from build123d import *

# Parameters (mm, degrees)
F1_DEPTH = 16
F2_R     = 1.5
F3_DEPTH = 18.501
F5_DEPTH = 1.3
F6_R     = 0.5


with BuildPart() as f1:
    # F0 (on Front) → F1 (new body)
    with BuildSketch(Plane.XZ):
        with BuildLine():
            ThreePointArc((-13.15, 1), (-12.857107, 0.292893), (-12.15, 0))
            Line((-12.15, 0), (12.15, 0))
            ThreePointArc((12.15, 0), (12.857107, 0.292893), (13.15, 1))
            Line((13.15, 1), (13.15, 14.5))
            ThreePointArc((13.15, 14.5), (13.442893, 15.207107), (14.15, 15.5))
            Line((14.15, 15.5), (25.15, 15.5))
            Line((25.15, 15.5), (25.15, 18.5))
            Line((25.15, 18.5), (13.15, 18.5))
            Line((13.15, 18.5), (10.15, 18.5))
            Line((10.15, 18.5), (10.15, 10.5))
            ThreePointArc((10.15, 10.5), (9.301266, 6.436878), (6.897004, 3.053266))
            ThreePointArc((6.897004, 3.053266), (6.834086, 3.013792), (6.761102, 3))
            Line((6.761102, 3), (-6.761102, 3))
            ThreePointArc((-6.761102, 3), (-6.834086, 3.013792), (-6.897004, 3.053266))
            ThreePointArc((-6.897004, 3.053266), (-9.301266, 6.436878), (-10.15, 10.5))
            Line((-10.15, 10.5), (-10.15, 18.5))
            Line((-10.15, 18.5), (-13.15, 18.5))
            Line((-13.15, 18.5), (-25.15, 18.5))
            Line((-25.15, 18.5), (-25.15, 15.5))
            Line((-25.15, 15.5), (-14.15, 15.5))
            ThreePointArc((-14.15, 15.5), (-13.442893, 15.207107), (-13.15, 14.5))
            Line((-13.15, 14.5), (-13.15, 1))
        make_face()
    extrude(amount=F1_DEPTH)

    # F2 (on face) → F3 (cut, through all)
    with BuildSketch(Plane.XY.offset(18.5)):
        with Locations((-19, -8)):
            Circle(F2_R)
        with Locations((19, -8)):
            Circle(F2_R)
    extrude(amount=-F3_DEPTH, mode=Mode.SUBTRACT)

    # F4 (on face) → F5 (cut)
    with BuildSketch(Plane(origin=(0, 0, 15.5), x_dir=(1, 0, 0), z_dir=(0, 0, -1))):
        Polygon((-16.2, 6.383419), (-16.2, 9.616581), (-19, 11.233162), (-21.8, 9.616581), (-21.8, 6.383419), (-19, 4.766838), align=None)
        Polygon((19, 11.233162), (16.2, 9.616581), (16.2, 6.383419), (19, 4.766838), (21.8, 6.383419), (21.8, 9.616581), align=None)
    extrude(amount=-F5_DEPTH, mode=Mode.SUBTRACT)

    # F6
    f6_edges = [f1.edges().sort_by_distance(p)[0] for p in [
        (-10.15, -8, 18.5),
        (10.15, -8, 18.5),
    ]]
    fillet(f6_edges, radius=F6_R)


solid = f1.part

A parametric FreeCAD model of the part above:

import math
import FreeCAD as App
import Part
import Sketcher

V = App.Vector
Q = App.Units.Quantity


def edges_at(feature, points):
    """Names of the edges that pass closest to the given points."""
    edges = feature.Shape.Edges
    near = lambda p: min(range(len(edges)), key=lambda i: edges[i].distToShape(Part.Vertex(*p))[0])
    return sorted({f"Edge{near(p) + 1}" for p in points})

doc = App.newDocument("Part")
body = doc.addObject("PartDesign::Body", "Body")

# Sketch on XZ plane
sketch1 = body.newObject("Sketcher::SketchObject", "Sketch")
sketch1.AttachmentSupport = (doc.getObject("XZ_Plane"), [""])
sketch1.MapMode = "FlatFace"
sketch1.addGeometry(Part.ArcOfCircle(Part.Circle(V(-12.15, 1, 0), V(0, 0, 1), 1), math.radians(180), math.radians(270)), False)
sketch1.addGeometry(Part.LineSegment(V(-12.15, 0, 0), V(12.15, 0, 0)), False)
sketch1.addGeometry(Part.ArcOfCircle(Part.Circle(V(12.15, 1, 0), V(0, 0, 1), 1), math.radians(-90), math.radians(0)), False)
sketch1.addGeometry(Part.LineSegment(V(13.15, 1, 0), V(13.15, 14.5, 0)), False)
sketch1.addGeometry(Part.ArcOfCircle(Part.Circle(V(14.15, 14.5, 0), V(0, 0, 1), 1), math.radians(90), math.radians(180)), False)
sketch1.addGeometry(Part.LineSegment(V(14.15, 15.5, 0), V(25.15, 15.5, 0)), False)
sketch1.addGeometry(Part.LineSegment(V(25.15, 15.5, 0), V(25.15, 18.5, 0)), False)
sketch1.addGeometry(Part.LineSegment(V(25.15, 18.5, 0), V(10.15, 18.5, 0)), False)
sketch1.addGeometry(Part.LineSegment(V(10.15, 18.5, 0), V(10.15, 10.5, 0)), False)
sketch1.addGeometry(Part.ArcOfCircle(Part.Circle(V(0, 10.5, 0), V(0, 0, 1), 10.15), math.radians(-47), math.radians(0)), False)
sketch1.addGeometry(Part.ArcOfCircle(Part.Circle(V(6.76, 3.2, 0), V(0, 0, 1), 0.2), math.radians(-90), math.radians(-47)), False)
sketch1.addGeometry(Part.LineSegment(V(6.76, 3, 0), V(-6.76, 3, 0)), False)
sketch1.addGeometry(Part.ArcOfCircle(Part.Circle(V(-6.76, 3.2, 0), V(0, 0, 1), 0.2), math.radians(-133), math.radians(-90)), False)
sketch1.addGeometry(Part.ArcOfCircle(Part.Circle(V(0, 10.5, 0), V(0, 0, 1), 10.15), math.radians(180), math.radians(227)), False)
sketch1.addGeometry(Part.LineSegment(V(-10.15, 10.5, 0), V(-10.15, 18.5, 0)), False)
sketch1.addGeometry(Part.LineSegment(V(-10.15, 18.5, 0), V(-25.15, 18.5, 0)), False)
sketch1.addGeometry(Part.LineSegment(V(-25.15, 18.5, 0), V(-25.15, 15.5, 0)), False)
sketch1.addGeometry(Part.LineSegment(V(-25.15, 15.5, 0), V(-14.15, 15.5, 0)), False)
sketch1.addGeometry(Part.ArcOfCircle(Part.Circle(V(-14.15, 14.5, 0), V(0, 0, 1), 1), math.radians(0), math.radians(90)), False)
sketch1.addGeometry(Part.LineSegment(V(-13.15, 14.5, 0), V(-13.15, 1, 0)), False)
sketch1.addConstraint(Sketcher.Constraint("Tangent", 0, 2, 1, 1))
sketch1.addConstraint(Sketcher.Constraint("Tangent", 1, 2, 2, 1))
sketch1.addConstraint(Sketcher.Constraint("Tangent", 2, 2, 3, 1))
sketch1.addConstraint(Sketcher.Constraint("Tangent", 3, 2, 4, 2))
sketch1.addConstraint(Sketcher.Constraint("Tangent", 4, 1, 5, 1))
sketch1.addConstraint(Sketcher.Constraint("Coincident", 5, 2, 6, 1))
sketch1.addConstraint(Sketcher.Constraint("Coincident", 6, 2, 7, 1))
sketch1.addConstraint(Sketcher.Constraint("Coincident", 7, 2, 8, 1))
sketch1.addConstraint(Sketcher.Constraint("Tangent", 8, 2, 9, 2))
sketch1.addConstraint(Sketcher.Constraint("Coincident", 9, 1, 10, 2))
sketch1.addConstraint(Sketcher.Constraint("Tangent", 10, 1, 11, 1))
sketch1.addConstraint(Sketcher.Constraint("Tangent", 11, 2, 12, 2))
sketch1.addConstraint(Sketcher.Constraint("Coincident", 12, 1, 13, 2))
sketch1.addConstraint(Sketcher.Constraint("Tangent", 13, 1, 14, 1))
sketch1.addConstraint(Sketcher.Constraint("Coincident", 14, 2, 15, 1))
sketch1.addConstraint(Sketcher.Constraint("Coincident", 15, 2, 16, 1))
sketch1.addConstraint(Sketcher.Constraint("Coincident", 16, 2, 17, 1))
sketch1.addConstraint(Sketcher.Constraint("Tangent", 17, 2, 18, 2))
sketch1.addConstraint(Sketcher.Constraint("Tangent", 18, 1, 19, 1))
sketch1.addConstraint(Sketcher.Constraint("Tangent", 19, 2, 0, 1))
sketch1.addConstraint(Sketcher.Constraint("Horizontal", 1))
sketch1.addConstraint(Sketcher.Constraint("Vertical", 3))
sketch1.addConstraint(Sketcher.Constraint("Horizontal", 5))
sketch1.addConstraint(Sketcher.Constraint("Vertical", 6))
sketch1.addConstraint(Sketcher.Constraint("Horizontal", 7))
sketch1.addConstraint(Sketcher.Constraint("Vertical", 8))
sketch1.addConstraint(Sketcher.Constraint("Horizontal", 11))
sketch1.addConstraint(Sketcher.Constraint("Vertical", 14))
sketch1.addConstraint(Sketcher.Constraint("Horizontal", 15))
sketch1.addConstraint(Sketcher.Constraint("Vertical", 16))
sketch1.addConstraint(Sketcher.Constraint("Horizontal", 17))
sketch1.addConstraint(Sketcher.Constraint("Vertical", 19))
sketch1.addConstraint(Sketcher.Constraint("Coincident", 13, 3, 9, 3))
sketch1.addConstraint(Sketcher.Constraint("Equal", 0, 2))
sketch1.addConstraint(Sketcher.Constraint("Equal", 2, 4))
sketch1.addConstraint(Sketcher.Constraint("Equal", 10, 12))
sketch1.addConstraint(Sketcher.Constraint("Equal", 9, 13))
sketch1.addConstraint(Sketcher.Constraint("Equal", 4, 18))
sketch1.addConstraint(Sketcher.Constraint("Symmetric", 0, 2, 1, 2, -1, 1))
sketch1.addConstraint(Sketcher.Constraint("Symmetric", 9, 1, 12, 1, -2))
sketch1.addConstraint(Sketcher.Constraint("Symmetric", 6, 2, 15, 2, -2))
sketch1.addConstraint(Sketcher.Constraint("Horizontal", 4, 3, 18, 3))
sketch1.addConstraint(Sketcher.Constraint("Radius", 0, 0.999999))
sketch1.addConstraint(Sketcher.Constraint("Radius", 10, 0.200001))
sketch1.addConstraint(Sketcher.Constraint("DistanceX", 5, 1, 5, 2, 11.0))
sketch1.addConstraint(Sketcher.Constraint("DistanceX", 7, 2, 7, 1, 15.0))
sketch1.addConstraint(Sketcher.Constraint("DistanceY", 6, 1, 6, 2, 3.0))
sketch1.addConstraint(Sketcher.Constraint("DistanceY", 8, 2, 8, 1, 8.0))
sketch1.addConstraint(Sketcher.Constraint("Radius", 9, 10.149998))
sketch1.addConstraint(Sketcher.Constraint("DistanceY", 3, 1, 3, 2, 13.5))
sketch1.addConstraint(Sketcher.Constraint("DistanceY", -1, 1, 10, 1, 3.0))
sketch1.addConstraint(Sketcher.Constraint("DistanceX", 10, 3, 9, 1, 0.135902))
pad1 = body.newObject("PartDesign::Pad", "Pad")
pad1.Profile = sketch1
pad1.Length = 16

# Sketch on XY plane
sketch2 = body.newObject("Sketcher::SketchObject", "Sketch001")
sketch2.AttachmentSupport = (doc.getObject("XY_Plane"), [""])
sketch2.MapMode = "FlatFace"
sketch2.AttachmentOffset = App.Placement(V(0, 0, 18.5), App.Rotation())
sketch2.addGeometry(Part.Circle(V(-19, -8, 0), V(0, 0, 1), 1.5), False)
sketch2.addGeometry(Part.Circle(V(19, -8, 0), V(0, 0, 1), 1.5), False)
sketch2.addConstraint(Sketcher.Constraint("Equal", 0, 1))
sketch2.addConstraint(Sketcher.Constraint("Symmetric", 0, 3, 1, 3, -2))
sketch2.addConstraint(Sketcher.Constraint("Diameter", 0, 3.0))
sketch2.addConstraint(Sketcher.Constraint("DistanceX", 0, 3, -1, 1, 19.0))
sketch2.addConstraint(Sketcher.Constraint("DistanceY", 0, 3, -1, 1, 8.0))
pocket1 = body.newObject("PartDesign::Pocket", "Pocket")
pocket1.Profile = sketch2
pocket1.Type = "ThroughAll"

# Sketch on XY plane
sketch3 = body.newObject("Sketcher::SketchObject", "Sketch002")
sketch3.AttachmentSupport = (doc.getObject("XY_Plane"), [""])
sketch3.MapMode = "FlatFace"
sketch3.AttachmentOffset = App.Placement(V(0, 0, 15.5), App.Rotation())
sketch3.addGeometry(Part.LineSegment(V(-16.2, -6.4, 0), V(-16.2, -9.6, 0)), False)
sketch3.addGeometry(Part.LineSegment(V(-16.2, -9.6, 0), V(-19, -11.2, 0)), False)
sketch3.addGeometry(Part.LineSegment(V(-19, -11.2, 0), V(-21.8, -9.6, 0)), False)
sketch3.addGeometry(Part.LineSegment(V(-21.8, -9.6, 0), V(-21.8, -6.4, 0)), False)
sketch3.addGeometry(Part.LineSegment(V(-21.8, -6.4, 0), V(-19, -4.8, 0)), False)
sketch3.addGeometry(Part.LineSegment(V(-19, -4.8, 0), V(-16.2, -6.4, 0)), False)
sketch3.addGeometry(Part.LineSegment(V(19, -11.2, 0), V(16.2, -9.6, 0)), False)
sketch3.addGeometry(Part.LineSegment(V(16.2, -9.6, 0), V(16.2, -6.4, 0)), False)
sketch3.addGeometry(Part.LineSegment(V(16.2, -6.4, 0), V(19, -4.8, 0)), False)
sketch3.addGeometry(Part.LineSegment(V(19, -4.8, 0), V(21.8, -6.4, 0)), False)
sketch3.addGeometry(Part.LineSegment(V(21.8, -6.4, 0), V(21.8, -9.6, 0)), False)
sketch3.addGeometry(Part.LineSegment(V(21.8, -9.6, 0), V(19, -11.2, 0)), False)
sketch3.addConstraint(Sketcher.Constraint("Coincident", 0, 2, 1, 1))
sketch3.addConstraint(Sketcher.Constraint("Coincident", 1, 2, 2, 1))
sketch3.addConstraint(Sketcher.Constraint("Coincident", 2, 2, 3, 1))
sketch3.addConstraint(Sketcher.Constraint("Coincident", 3, 2, 4, 1))
sketch3.addConstraint(Sketcher.Constraint("Coincident", 4, 2, 5, 1))
sketch3.addConstraint(Sketcher.Constraint("Coincident", 5, 2, 0, 1))
sketch3.addConstraint(Sketcher.Constraint("Coincident", 6, 2, 7, 1))
sketch3.addConstraint(Sketcher.Constraint("Coincident", 7, 2, 8, 1))
sketch3.addConstraint(Sketcher.Constraint("Coincident", 8, 2, 9, 1))
sketch3.addConstraint(Sketcher.Constraint("Coincident", 9, 2, 10, 1))
sketch3.addConstraint(Sketcher.Constraint("Coincident", 10, 2, 11, 1))
sketch3.addConstraint(Sketcher.Constraint("Coincident", 11, 2, 6, 1))
sketch3.addConstraint(Sketcher.Constraint("Vertical", 0))
sketch3.addConstraint(Sketcher.Constraint("Vertical", 3))
sketch3.addConstraint(Sketcher.Constraint("Vertical", 7))
sketch3.addConstraint(Sketcher.Constraint("Vertical", 10))
sketch3.addConstraint(Sketcher.Constraint("Symmetric", 0, 2, 6, 2, -2))
sketch3.addConstraint(Sketcher.Constraint("Symmetric", 4, 2, 8, 2, -2))
sketch3.addConstraint(Sketcher.Constraint("Symmetric", 3, 2, 9, 2, -2))
sketch3.addConstraint(Sketcher.Constraint("Symmetric", 1, 2, 11, 2, -2))
sketch3.addConstraint(Sketcher.Constraint("Parallel", 1, 4))
sketch3.addConstraint(Sketcher.Constraint("Parallel", 2, 5))
sketch3.addConstraint(Sketcher.Constraint("Parallel", 5, 6))
sketch3.addConstraint(Sketcher.Constraint("Parallel", 4, 8))
sketch3.addConstraint(Sketcher.Constraint("Parallel", 8, 11))
sketch3.addConstraint(Sketcher.Constraint("Horizontal", 0, 2, 2, 2))
sketch3.addConstraint(Sketcher.Constraint("Horizontal", 3, 2, 5, 2))
sketch3.addConstraint(Sketcher.Constraint("Angle", 1, Q("-149.999996 deg")))
sketch3.addConstraint(Sketcher.Constraint("DistanceX", 1, 2, -1, 1, 19.0))
sketch3.addConstraint(Sketcher.Constraint("DistanceX", 0, 2, -1, 1, 16.2))
sketch3.addConstraint(Sketcher.Constraint("DistanceY", 0, 2, 0, 1, 3.233162))
sketch3.addConstraint(Sketcher.Constraint("DistanceY", 0, 2, -1, 1, 9.616581))
pocket2 = body.newObject("PartDesign::Pocket", "Pocket001")
pocket2.Profile = sketch3
pocket2.Length = 1.3
pocket2.Reversed = True
doc.recompute()

fillet = body.newObject("PartDesign::Fillet", "Fillet")
fillet.Base = (pocket2, edges_at(pocket2, [(-10.15, -8, 18.5), (10.15, -8, 18.5)]))
fillet.Radius = 0.5

doc.recompute()
